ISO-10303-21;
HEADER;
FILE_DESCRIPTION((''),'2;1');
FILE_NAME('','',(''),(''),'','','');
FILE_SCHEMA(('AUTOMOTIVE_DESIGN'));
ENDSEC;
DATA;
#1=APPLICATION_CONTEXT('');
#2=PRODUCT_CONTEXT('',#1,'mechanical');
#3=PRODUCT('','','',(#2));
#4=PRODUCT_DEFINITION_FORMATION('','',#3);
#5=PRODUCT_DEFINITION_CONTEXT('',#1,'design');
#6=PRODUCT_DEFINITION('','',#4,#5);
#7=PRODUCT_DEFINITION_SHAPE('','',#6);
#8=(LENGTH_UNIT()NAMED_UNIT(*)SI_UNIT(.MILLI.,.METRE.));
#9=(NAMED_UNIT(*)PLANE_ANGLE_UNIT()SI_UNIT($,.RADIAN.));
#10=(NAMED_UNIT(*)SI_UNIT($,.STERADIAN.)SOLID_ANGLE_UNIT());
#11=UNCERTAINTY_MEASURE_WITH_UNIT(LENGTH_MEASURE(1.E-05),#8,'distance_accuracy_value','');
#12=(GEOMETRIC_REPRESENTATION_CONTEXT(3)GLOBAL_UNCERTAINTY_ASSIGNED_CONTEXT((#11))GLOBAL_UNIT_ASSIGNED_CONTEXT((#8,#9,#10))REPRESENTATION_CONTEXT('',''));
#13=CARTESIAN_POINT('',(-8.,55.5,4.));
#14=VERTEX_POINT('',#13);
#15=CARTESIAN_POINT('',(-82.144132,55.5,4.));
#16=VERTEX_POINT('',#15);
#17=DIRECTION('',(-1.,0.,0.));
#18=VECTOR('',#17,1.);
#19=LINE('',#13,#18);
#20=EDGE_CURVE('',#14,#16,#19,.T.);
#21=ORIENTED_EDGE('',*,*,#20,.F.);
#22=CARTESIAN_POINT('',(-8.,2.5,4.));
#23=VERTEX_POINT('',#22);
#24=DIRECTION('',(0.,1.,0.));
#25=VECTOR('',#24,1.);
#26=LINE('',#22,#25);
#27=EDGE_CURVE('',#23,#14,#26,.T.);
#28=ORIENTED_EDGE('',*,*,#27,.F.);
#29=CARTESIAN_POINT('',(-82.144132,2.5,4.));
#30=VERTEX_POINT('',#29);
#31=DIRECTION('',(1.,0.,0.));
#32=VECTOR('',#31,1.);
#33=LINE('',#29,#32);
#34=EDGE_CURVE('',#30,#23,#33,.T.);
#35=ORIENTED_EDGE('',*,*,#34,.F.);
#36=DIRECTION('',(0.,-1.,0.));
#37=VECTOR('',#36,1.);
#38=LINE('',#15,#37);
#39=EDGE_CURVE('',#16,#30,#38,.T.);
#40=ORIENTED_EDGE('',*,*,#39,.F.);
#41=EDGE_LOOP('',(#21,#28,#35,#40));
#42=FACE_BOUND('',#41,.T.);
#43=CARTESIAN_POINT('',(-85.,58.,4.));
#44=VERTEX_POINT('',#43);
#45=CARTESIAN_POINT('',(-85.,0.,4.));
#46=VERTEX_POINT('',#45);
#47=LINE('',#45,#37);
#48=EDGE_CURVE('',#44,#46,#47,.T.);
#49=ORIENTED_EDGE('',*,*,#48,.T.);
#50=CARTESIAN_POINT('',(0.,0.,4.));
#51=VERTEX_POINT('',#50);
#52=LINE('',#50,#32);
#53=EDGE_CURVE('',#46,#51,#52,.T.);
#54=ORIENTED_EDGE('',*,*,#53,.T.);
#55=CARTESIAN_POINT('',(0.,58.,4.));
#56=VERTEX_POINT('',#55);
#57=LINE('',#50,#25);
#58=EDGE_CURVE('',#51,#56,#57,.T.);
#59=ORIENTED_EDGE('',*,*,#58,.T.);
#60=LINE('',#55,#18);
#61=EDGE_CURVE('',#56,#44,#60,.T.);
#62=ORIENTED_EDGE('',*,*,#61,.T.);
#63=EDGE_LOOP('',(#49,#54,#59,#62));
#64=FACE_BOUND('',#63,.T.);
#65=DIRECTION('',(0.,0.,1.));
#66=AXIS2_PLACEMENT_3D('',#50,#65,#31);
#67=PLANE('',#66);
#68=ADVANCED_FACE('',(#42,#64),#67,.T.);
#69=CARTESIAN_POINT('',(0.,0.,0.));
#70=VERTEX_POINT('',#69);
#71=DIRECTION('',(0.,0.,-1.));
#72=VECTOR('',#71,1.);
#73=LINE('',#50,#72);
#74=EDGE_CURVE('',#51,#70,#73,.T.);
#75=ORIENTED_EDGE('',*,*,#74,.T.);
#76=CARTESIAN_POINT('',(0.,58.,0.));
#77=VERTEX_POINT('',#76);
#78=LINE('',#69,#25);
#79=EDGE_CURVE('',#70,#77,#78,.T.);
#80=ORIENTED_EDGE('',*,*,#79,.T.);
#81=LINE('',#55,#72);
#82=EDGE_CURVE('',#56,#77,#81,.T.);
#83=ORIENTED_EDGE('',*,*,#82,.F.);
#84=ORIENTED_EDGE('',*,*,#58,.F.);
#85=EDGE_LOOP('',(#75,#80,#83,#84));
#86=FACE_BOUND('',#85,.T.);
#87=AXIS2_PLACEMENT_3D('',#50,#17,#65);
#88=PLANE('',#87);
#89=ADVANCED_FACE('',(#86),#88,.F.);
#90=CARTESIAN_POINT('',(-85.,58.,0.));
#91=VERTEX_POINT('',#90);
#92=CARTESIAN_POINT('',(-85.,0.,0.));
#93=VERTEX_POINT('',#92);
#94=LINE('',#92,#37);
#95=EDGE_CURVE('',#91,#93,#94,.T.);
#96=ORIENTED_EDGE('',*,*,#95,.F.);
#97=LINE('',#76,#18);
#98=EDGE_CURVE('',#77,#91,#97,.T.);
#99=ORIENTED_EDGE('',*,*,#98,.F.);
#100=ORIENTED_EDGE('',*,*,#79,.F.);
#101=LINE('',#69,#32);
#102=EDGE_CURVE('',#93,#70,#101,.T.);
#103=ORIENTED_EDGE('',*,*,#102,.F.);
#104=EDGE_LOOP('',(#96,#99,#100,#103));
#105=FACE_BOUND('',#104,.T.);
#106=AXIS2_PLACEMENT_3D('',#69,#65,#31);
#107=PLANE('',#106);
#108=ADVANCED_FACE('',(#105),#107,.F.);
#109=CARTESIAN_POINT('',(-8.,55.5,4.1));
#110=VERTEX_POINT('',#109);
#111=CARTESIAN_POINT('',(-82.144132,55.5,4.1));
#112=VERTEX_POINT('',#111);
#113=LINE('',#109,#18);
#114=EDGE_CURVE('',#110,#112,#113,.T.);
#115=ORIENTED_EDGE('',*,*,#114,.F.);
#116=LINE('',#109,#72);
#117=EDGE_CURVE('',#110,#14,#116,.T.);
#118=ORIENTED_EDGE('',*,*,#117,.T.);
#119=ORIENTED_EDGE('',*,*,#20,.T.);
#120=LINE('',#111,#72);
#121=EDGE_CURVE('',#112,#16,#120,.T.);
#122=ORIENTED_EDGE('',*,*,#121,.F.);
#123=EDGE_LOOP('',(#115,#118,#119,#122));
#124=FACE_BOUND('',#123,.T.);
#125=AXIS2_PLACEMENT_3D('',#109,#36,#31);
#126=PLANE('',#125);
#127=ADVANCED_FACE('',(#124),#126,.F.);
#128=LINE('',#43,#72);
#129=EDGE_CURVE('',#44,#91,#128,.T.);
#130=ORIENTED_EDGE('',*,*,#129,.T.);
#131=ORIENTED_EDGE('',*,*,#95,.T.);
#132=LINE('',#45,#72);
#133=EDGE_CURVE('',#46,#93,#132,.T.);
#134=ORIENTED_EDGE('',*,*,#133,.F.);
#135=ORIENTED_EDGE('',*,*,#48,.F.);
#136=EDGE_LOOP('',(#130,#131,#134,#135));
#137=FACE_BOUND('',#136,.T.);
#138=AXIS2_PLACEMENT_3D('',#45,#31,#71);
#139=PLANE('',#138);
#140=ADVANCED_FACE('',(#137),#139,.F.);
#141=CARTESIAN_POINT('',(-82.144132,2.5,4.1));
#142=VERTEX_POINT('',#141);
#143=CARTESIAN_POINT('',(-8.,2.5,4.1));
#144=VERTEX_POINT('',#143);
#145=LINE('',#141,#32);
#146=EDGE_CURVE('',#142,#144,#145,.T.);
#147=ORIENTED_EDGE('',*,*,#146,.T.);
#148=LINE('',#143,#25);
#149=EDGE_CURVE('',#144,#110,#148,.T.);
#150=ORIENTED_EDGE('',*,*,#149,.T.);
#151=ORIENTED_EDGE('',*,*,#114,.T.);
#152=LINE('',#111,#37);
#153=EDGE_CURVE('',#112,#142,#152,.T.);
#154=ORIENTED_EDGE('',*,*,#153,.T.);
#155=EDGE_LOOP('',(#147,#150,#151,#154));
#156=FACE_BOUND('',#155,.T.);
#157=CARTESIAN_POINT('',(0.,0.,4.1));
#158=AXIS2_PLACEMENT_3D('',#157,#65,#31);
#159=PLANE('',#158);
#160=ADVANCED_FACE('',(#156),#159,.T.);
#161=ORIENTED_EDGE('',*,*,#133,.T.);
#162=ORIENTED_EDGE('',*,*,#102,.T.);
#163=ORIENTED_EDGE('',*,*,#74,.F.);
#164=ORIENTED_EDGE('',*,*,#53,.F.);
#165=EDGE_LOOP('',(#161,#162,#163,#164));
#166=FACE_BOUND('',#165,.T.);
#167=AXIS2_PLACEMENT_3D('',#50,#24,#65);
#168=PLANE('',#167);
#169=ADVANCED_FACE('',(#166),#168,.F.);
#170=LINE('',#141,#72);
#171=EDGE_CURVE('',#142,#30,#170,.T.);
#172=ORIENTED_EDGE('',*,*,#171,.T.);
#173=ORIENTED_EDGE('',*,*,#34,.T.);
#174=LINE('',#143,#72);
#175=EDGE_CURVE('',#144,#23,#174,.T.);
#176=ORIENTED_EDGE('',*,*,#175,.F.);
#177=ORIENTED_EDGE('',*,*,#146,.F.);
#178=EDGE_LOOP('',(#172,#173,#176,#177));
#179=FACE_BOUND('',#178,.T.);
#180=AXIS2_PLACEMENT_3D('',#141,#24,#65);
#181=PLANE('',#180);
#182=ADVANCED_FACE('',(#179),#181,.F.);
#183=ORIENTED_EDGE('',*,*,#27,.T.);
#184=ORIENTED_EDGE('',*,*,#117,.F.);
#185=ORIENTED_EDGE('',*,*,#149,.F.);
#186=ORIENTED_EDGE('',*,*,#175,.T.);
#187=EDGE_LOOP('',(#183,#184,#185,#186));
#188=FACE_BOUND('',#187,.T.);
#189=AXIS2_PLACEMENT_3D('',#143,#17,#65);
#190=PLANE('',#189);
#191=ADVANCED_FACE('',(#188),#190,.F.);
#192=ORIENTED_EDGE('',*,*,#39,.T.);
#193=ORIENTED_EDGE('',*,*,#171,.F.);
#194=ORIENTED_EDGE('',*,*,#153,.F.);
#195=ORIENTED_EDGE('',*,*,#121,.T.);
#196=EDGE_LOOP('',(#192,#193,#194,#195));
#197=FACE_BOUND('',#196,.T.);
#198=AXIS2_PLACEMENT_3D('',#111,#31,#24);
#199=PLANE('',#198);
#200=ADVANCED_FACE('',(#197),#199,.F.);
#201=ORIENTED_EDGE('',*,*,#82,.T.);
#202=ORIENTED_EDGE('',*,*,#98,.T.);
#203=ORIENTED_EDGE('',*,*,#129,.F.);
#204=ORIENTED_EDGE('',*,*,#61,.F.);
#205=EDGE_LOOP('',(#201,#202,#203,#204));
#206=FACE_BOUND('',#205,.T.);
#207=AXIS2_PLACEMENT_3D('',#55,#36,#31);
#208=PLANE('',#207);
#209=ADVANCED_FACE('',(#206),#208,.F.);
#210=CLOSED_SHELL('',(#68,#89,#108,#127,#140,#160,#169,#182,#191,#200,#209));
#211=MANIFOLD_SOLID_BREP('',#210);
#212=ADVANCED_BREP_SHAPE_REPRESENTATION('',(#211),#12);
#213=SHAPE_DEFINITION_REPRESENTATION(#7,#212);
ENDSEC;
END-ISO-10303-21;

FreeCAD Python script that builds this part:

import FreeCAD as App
import Part
import Sketcher
Q = App.Units.Quantity


def add_polygon(sketch, points):
    """Adds a closed chain of lines whose ends are joined by coincident constraints."""
    first, n = sketch.GeometryCount, len(points)
    for a, b in zip(points, points[1:] + points[:1]):
        sketch.addGeometry(Part.LineSegment(App.Vector(*a, 0), App.Vector(*b, 0)), False)
    for i in range(n):
        sketch.addConstraint(Sketcher.Constraint("Coincident", first + i, 2, first + (i + 1) % n, 1))

doc = App.newDocument("Part")
body = doc.addObject("PartDesign::Body", "Body")

# Sketch on XY plane
sketch1 = body.newObject("Sketcher::SketchObject", "Sketch")
sketch1.AttachmentSupport = (doc.getObject("XY_Plane"), [""])
sketch1.MapMode = "FlatFace"
add_polygon(sketch1, [(-85, 58), (-85, 0), (0, 0), (0, 58)])  # lines 0-3
sketch1.addConstraint([
    Sketcher.Constraint("Vertical", 0),
    Sketcher.Constraint("Horizontal", 1),
    Sketcher.Constraint("Vertical", 2),
    Sketcher.Constraint("Horizontal", 3),
    Sketcher.Constraint("Coincident", 1, 2, -1, 1),
    Sketcher.Constraint("DistanceX", 1, 1, 1, 2, Q("85 mm")),
    Sketcher.Constraint("DistanceY", 0, 2, 0, 1, Q("58 mm")),
])
pad1 = body.newObject("PartDesign::Pad", "Pad")
pad1.Profile = sketch1
pad1.Length = 4

# Sketch on XY plane
sketch2 = body.newObject("Sketcher::SketchObject", "Sketch001")
sketch2.AttachmentSupport = (doc.getObject("XY_Plane"), [""])
sketch2.MapMode = "FlatFace"
sketch2.AttachmentOffset = App.Placement(App.Vector(0, 0, 4), App.Rotation())
add_polygon(sketch2, [(-82, 56), (-82, 2), (-8, 2), (-8, 56)])  # lines 0-3
sketch2.addConstraint([
    Sketcher.Constraint("Vertical", 0),
    Sketcher.Constraint("Horizontal", 1),
    Sketcher.Constraint("Vertical", 2),
    Sketcher.Constraint("Horizontal", 3),
    Sketcher.Constraint("DistanceY", 0, 2, 0, 1, Q("53 mm")),
    Sketcher.Constraint("DistanceX", 1, 2, -1, 1, Q("8 mm")),
    Sketcher.Constraint("DistanceY", -1, 1, 0, 2, Q("2.5 mm")),
    Sketcher.Constraint("DistanceX", 1, 1, 1, 2, Q("74.144132 mm")),
])
pad2 = body.newObject("PartDesign::Pad", "Pad001")
pad2.Profile = sketch2
pad2.Length = 0.1

doc.recompute()
